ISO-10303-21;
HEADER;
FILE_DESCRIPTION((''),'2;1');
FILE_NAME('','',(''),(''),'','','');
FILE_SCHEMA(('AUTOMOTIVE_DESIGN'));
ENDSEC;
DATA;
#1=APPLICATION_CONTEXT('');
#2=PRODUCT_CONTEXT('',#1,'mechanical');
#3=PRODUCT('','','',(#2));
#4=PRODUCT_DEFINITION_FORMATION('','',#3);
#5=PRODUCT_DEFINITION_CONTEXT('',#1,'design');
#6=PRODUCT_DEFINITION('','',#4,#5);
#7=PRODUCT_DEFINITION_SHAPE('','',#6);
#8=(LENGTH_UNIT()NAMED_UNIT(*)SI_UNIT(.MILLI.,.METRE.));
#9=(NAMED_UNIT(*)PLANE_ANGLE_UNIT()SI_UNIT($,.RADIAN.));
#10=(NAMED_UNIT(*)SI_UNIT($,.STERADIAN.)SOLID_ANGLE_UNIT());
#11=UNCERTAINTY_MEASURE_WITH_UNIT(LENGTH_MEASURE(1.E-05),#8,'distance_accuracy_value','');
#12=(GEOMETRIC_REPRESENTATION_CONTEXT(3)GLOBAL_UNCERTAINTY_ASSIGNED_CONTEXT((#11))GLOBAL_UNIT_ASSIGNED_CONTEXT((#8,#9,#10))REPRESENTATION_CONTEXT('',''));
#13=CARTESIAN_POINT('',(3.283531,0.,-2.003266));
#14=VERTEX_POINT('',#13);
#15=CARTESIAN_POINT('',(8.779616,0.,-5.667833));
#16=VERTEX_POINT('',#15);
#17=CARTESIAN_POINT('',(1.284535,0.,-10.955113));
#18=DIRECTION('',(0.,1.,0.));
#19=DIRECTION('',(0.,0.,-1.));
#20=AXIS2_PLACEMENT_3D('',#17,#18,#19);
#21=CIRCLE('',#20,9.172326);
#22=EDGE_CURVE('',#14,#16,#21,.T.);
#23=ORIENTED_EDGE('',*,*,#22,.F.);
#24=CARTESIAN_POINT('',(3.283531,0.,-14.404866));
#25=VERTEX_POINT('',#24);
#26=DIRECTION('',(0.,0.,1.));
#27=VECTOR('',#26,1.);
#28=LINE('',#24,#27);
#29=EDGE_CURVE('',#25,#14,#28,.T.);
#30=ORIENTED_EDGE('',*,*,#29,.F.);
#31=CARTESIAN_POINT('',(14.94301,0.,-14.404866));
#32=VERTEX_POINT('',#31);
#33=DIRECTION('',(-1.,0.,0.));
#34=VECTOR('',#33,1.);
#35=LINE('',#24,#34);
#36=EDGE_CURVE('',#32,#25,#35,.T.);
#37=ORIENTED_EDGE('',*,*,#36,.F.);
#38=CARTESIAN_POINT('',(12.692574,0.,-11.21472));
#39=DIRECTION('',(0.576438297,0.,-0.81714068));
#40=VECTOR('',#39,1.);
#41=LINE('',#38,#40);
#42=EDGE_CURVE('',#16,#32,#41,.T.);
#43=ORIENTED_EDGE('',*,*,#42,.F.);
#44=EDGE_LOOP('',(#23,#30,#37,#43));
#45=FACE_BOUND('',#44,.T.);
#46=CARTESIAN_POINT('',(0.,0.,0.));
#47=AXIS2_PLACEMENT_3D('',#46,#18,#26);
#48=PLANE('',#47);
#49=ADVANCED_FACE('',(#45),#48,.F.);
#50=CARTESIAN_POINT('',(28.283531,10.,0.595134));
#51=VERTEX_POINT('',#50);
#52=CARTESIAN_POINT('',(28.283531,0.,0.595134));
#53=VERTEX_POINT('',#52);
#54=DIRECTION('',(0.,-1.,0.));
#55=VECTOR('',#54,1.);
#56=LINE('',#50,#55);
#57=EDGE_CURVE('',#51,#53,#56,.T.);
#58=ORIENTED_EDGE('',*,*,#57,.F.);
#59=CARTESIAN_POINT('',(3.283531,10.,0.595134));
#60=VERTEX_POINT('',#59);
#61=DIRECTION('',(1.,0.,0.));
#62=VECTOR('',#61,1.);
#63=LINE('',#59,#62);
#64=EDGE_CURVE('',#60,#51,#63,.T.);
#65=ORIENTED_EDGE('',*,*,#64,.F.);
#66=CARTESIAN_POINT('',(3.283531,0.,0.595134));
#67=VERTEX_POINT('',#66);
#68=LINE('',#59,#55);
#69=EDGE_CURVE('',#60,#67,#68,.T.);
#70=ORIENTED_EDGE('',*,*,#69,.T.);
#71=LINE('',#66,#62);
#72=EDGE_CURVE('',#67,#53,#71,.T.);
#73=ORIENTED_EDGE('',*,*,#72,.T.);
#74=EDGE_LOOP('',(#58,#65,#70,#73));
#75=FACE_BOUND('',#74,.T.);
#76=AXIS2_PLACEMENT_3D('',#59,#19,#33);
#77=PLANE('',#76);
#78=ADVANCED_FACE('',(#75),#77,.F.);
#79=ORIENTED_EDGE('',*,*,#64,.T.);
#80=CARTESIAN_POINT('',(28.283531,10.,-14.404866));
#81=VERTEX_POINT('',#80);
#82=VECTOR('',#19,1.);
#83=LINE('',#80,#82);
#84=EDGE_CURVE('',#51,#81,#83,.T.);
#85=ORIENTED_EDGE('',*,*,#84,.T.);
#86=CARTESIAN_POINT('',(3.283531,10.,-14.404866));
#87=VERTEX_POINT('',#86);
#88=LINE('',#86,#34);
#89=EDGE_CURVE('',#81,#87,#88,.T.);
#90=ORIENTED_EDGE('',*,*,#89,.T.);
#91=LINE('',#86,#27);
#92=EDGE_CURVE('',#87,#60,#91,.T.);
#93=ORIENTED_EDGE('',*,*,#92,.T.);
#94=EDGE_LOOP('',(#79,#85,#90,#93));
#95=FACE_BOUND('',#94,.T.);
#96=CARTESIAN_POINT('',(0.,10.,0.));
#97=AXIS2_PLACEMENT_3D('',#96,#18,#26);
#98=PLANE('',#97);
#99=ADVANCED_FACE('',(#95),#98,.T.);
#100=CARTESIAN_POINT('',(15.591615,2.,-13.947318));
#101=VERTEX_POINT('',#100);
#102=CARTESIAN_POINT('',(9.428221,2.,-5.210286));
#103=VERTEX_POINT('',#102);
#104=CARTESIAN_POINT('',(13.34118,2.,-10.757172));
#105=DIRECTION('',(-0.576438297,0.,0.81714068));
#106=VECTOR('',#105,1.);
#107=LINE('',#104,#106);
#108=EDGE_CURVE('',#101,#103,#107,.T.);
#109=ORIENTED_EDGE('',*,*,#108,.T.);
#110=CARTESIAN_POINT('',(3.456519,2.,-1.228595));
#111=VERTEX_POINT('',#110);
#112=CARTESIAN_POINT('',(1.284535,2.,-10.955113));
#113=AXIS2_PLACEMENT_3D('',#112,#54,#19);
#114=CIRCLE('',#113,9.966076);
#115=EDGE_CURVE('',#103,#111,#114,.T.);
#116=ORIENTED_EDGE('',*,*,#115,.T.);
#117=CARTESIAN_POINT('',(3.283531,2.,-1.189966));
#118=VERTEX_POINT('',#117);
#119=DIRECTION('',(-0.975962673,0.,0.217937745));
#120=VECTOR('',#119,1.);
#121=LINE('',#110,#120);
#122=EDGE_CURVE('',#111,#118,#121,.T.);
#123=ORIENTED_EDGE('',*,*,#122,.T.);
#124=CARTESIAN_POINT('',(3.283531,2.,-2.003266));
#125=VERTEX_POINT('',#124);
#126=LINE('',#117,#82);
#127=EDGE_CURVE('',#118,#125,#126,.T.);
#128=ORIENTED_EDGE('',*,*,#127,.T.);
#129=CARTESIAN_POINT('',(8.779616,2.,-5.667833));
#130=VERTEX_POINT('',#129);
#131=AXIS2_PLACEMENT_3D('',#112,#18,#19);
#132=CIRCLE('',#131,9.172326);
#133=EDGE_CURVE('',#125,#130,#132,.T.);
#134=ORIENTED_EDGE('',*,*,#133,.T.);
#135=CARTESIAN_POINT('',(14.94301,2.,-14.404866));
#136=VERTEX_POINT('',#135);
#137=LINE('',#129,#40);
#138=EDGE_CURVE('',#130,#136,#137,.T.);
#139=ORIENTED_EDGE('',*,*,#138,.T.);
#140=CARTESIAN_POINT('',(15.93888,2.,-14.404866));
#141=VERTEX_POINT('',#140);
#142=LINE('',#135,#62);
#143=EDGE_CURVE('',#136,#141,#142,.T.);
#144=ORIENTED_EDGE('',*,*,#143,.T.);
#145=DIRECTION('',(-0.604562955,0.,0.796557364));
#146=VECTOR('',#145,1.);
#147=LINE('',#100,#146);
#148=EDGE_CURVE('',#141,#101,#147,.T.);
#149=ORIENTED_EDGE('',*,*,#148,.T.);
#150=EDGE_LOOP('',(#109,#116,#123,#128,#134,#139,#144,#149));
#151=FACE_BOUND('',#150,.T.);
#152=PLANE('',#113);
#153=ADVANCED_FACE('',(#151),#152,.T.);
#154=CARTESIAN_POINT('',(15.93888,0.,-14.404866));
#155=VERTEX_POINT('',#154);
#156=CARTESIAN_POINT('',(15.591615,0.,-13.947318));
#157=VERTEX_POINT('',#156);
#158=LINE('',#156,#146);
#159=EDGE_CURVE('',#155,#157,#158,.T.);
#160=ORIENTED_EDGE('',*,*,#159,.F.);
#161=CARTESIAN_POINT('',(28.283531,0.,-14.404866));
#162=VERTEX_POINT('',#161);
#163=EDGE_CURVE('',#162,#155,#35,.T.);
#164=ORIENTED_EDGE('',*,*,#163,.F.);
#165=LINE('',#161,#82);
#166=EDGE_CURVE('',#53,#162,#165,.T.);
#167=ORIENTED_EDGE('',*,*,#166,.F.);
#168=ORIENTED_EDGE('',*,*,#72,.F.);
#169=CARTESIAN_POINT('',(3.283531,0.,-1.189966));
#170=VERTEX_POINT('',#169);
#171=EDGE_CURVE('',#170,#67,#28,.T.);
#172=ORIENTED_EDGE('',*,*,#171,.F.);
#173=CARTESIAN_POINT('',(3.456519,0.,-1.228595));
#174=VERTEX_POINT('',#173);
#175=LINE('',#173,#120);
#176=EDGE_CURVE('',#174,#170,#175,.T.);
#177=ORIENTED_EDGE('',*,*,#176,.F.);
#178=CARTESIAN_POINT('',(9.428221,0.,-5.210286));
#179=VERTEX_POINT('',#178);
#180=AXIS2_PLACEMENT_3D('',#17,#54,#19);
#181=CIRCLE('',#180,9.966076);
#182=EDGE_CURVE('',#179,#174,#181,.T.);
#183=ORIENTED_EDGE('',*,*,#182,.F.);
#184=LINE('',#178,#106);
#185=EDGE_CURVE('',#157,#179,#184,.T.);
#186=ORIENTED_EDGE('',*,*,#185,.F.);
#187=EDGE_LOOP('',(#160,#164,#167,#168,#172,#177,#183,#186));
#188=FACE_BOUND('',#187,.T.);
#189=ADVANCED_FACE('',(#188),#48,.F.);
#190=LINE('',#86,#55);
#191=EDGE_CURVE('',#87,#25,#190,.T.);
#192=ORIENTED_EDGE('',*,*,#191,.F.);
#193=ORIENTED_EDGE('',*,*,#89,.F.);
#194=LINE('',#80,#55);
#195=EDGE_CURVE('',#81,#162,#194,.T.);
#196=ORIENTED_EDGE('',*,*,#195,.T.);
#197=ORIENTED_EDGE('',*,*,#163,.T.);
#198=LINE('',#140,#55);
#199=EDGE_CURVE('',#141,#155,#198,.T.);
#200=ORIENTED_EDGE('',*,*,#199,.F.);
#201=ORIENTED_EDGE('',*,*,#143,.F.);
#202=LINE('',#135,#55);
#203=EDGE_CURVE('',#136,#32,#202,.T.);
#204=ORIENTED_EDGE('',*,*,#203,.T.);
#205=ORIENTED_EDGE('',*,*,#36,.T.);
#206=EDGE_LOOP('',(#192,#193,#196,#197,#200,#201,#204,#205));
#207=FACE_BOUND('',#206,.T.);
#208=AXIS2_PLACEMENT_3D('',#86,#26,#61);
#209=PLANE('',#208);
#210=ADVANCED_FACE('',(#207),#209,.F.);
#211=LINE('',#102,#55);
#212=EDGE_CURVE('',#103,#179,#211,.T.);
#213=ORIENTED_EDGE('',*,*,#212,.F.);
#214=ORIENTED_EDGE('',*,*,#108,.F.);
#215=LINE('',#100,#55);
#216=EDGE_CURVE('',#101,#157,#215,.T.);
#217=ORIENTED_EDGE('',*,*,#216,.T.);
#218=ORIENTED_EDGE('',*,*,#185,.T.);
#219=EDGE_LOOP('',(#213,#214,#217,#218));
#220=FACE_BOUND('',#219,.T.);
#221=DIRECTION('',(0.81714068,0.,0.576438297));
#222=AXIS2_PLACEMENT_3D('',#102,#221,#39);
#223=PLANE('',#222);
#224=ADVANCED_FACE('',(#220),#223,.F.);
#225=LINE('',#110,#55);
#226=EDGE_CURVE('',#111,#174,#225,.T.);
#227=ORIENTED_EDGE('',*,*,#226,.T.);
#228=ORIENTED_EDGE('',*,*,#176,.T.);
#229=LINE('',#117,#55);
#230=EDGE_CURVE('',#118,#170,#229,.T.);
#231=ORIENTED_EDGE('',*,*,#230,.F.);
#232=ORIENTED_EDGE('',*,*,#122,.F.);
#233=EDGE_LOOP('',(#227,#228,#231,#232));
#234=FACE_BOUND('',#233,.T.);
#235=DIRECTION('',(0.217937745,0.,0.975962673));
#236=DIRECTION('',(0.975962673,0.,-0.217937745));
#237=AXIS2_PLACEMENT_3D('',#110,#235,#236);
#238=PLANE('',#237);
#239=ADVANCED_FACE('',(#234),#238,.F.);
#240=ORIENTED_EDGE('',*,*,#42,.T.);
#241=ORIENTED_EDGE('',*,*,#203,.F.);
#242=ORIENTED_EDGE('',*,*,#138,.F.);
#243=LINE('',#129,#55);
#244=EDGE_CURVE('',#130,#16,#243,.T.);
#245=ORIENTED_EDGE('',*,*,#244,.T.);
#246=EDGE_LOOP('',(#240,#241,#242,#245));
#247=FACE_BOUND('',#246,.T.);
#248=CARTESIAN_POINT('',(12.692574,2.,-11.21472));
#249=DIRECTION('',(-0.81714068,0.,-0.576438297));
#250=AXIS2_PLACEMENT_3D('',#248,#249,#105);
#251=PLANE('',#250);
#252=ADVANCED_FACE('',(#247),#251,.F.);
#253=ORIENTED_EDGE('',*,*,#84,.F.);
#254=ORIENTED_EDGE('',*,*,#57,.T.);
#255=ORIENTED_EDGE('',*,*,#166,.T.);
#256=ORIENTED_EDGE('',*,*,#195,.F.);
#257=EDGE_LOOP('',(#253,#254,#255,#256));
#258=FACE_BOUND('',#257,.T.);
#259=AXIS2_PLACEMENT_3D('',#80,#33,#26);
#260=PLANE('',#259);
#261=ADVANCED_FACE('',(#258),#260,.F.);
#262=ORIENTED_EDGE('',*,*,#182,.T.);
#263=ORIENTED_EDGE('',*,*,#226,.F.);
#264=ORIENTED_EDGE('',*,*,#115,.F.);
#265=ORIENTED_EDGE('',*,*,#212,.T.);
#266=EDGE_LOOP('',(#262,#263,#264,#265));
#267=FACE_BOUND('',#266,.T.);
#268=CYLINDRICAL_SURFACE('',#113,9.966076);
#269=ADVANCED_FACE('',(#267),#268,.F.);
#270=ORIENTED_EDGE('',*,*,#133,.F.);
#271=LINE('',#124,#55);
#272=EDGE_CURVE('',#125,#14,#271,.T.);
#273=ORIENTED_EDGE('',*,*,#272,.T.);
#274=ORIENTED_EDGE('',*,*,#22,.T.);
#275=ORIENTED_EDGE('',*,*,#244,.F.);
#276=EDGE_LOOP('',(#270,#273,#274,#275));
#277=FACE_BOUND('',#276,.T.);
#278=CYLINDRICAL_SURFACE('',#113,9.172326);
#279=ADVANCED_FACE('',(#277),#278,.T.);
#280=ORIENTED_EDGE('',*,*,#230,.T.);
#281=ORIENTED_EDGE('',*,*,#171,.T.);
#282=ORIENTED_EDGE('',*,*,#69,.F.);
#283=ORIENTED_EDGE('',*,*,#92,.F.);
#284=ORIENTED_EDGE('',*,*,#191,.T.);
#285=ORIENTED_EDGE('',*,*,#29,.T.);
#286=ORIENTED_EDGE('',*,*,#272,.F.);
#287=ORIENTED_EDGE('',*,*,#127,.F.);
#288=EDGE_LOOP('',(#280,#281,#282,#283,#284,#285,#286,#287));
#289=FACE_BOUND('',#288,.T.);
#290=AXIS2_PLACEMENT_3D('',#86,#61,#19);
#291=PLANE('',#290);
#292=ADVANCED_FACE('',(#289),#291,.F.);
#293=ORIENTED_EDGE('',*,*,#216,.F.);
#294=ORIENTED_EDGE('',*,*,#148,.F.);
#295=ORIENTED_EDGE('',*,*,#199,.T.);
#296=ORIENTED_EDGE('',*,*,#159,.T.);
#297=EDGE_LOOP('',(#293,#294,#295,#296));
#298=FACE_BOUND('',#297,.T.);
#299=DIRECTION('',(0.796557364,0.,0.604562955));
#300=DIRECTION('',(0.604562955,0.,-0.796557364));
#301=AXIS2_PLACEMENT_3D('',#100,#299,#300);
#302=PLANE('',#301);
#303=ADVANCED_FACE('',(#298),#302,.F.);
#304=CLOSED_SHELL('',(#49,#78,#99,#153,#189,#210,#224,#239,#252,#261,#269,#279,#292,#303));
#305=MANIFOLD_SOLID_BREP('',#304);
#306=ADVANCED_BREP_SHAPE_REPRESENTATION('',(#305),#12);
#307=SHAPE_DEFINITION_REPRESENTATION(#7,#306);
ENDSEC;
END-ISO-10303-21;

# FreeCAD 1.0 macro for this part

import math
import FreeCAD as App
import Part
import Sketcher
Q = App.Units.Quantity

doc = App.newDocument("Part")
body = doc.addObject("PartDesign::Body", "Body")

# Sketch on XZ plane
sketch1 = body.newObject("Sketcher::SketchObject", "Sketch")
sketch1.AttachmentSupport = (doc.getObject("XZ_Plane"), [""])
sketch1.MapMode = "FlatFace"
sketch1.addGeometry([
    Part.LineSegment(App.Vector(3.283531, -14.404866, 0), App.Vector(3.283531, 0.595134, 0)),
    Part.LineSegment(App.Vector(3.283531, 0.595134, 0), App.Vector(28.283531, 0.595134, 0)),
    Part.LineSegment(App.Vector(28.283531, 0.595134, 0), App.Vector(28.283531, -14.404866, 0)),
    Part.LineSegment(App.Vector(28.283531, -14.404866, 0), App.Vector(3.283531, -14.404866, 0)),
], False)
sketch1.addConstraint([
    Sketcher.Constraint("Coincident", 0, 2, 1, 1),
    Sketcher.Constraint("Coincident", 1, 2, 2, 1),
    Sketcher.Constraint("Coincident", 2, 2, 3, 1),
    Sketcher.Constraint("Coincident", 3, 2, 0, 1),
    Sketcher.Constraint("Vertical", 0),
    Sketcher.Constraint("Horizontal", 1),
    Sketcher.Constraint("Vertical", 2),
    Sketcher.Constraint("Horizontal", 3),
    Sketcher.Constraint("DistanceX", 1, 1, 1, 2, Q("25 mm")),
    Sketcher.Constraint("DistanceY", 0, 1, 0, 2, Q("15 mm")),
    Sketcher.Constraint("DistanceX", -1, 1, 0, 2, Q("3.283531 mm")),
    Sketcher.Constraint("DistanceY", -1, 1, 0, 2, Q("0.595134 mm")),
])
pad1 = body.newObject("PartDesign::Pad", "Pad")
pad1.Profile = sketch1
pad1.Length = 10
pad1.Reversed = True

# Sketch on XZ plane
sketch2 = body.newObject("Sketcher::SketchObject", "Sketch001")
sketch2.AttachmentSupport = (doc.getObject("XZ_Plane"), [""])
sketch2.MapMode = "FlatFace"
sketch2.addGeometry([
    Part.LineSegment(App.Vector(13.34118, -10.757172, 0), App.Vector(9.428221, -5.210286, 0)),  # 0
    Part.ArcOfCircle(Part.Circle(App.Vector(1.284535, -10.955113, 0), App.Vector(0, 0, 1), 9.966076), math.radians(35.200419), math.radians(77.412064)),  # 1
    Part.LineSegment(App.Vector(3.456519, -1.228595, 0), App.Vector(3.283531, -1.189966, 0)),  # 2
    Part.LineSegment(App.Vector(3.283531, -1.189966, 0), App.Vector(3.283531, -2.003266, 0)),  # 3
    Part.ArcOfCircle(Part.Circle(App.Vector(1.284535, -10.955113, 0), App.Vector(0, 0, 1), 9.172326), math.radians(35.200419), math.radians(77.412064)),  # 4
    Part.LineSegment(App.Vector(8.779616, -5.667833, 0), App.Vector(12.692574, -11.21472, 0)),  # 5
    Part.LineSegment(App.Vector(12.692574, -11.21472, 0), App.Vector(14.94301, -14.404866, 0)),  # 6
    Part.LineSegment(App.Vector(14.94301, -14.404866, 0), App.Vector(15.93888, -14.404866, 0)),  # 7
    Part.LineSegment(App.Vector(15.93888, -14.404866, 0), App.Vector(15.591615, -13.947318, 0)),  # 8
    Part.LineSegment(App.Vector(15.591615, -13.947318, 0), App.Vector(13.34118, -10.757172, 0)),  # 9
], False)
sketch2.addConstraint([
    Sketcher.Constraint("Coincident", 0, 2, 1, 1),
    Sketcher.Constraint("Coincident", 1, 2, 2, 1),
    Sketcher.Constraint("Coincident", 2, 2, 3, 1),
    Sketcher.Constraint("Coincident", 3, 2, 4, 2),
    Sketcher.Constraint("Coincident", 4, 1, 5, 1),
    Sketcher.Constraint("Coincident", 5, 2, 6, 1),
    Sketcher.Constraint("Coincident", 6, 2, 7, 1),
    Sketcher.Constraint("Coincident", 7, 2, 8, 1),
    Sketcher.Constraint("Coincident", 8, 2, 9, 1),
    Sketcher.Constraint("Coincident", 9, 2, 0, 1),
    Sketcher.Constraint("Vertical", 3),
    Sketcher.Constraint("Horizontal", 7),
    Sketcher.Constraint("Coincident", 4, 3, 1, 3),
    Sketcher.Constraint("DistanceY", 3, 2, 3, 1, Q("0.8133 mm")),
    Sketcher.Constraint("Radius", 1, Q("9.966076 mm")),
    Sketcher.Constraint("Radius", 4, Q("9.172326 mm")),
    Sketcher.Constraint("DistanceX", 4, 1, 8, 2, Q("6.812 mm")),
    Sketcher.Constraint("DistanceX", 7, 1, 7, 2, Q("0.99587 mm")),
    Sketcher.Constraint("DistanceX", 1, 2, 0, 2, Q("5.971702 mm")),
    Sketcher.Constraint("DistanceY", 8, 2, 5, 2, Q("2.732598 mm")),
    Sketcher.Constraint("DistanceX", 9, 2, 7, 2, Q("2.597701 mm")),
    Sketcher.Constraint("Distance", 2, Q("0.177249 mm")),
    Sketcher.Constraint("DistanceX", -1, 1, 0, 2, Q("9.428221 mm")),
    Sketcher.Constraint("DistanceY", 5, 2, -1, 1, Q("11.21472 mm")),
    Sketcher.Constraint("DistanceX", -1, 1, 6, 2, Q("14.94301 mm")),
    Sketcher.Constraint("DistanceY", 9, 2, -1, 1, Q("10.757172 mm")),
    Sketcher.Constraint("DistanceY", 0, 2, 1, 2, Q("3.98169 mm")),
    Sketcher.Constraint("DistanceY", 4, 1, 1, 2, Q("4.439238 mm")),
    Sketcher.Constraint("DistanceX", 4, 1, 5, 2, Q("3.912959 mm")),
    Sketcher.Constraint("DistanceY", 6, 2, 0, 2, Q("9.19458 mm")),
    Sketcher.Constraint("Distance", 0, Q("6.788166 mm")),
])
pocket1 = body.newObject("PartDesign::Pocket", "Pocket")
pocket1.Profile = sketch2
pocket1.Length = 2

doc.recompute()
